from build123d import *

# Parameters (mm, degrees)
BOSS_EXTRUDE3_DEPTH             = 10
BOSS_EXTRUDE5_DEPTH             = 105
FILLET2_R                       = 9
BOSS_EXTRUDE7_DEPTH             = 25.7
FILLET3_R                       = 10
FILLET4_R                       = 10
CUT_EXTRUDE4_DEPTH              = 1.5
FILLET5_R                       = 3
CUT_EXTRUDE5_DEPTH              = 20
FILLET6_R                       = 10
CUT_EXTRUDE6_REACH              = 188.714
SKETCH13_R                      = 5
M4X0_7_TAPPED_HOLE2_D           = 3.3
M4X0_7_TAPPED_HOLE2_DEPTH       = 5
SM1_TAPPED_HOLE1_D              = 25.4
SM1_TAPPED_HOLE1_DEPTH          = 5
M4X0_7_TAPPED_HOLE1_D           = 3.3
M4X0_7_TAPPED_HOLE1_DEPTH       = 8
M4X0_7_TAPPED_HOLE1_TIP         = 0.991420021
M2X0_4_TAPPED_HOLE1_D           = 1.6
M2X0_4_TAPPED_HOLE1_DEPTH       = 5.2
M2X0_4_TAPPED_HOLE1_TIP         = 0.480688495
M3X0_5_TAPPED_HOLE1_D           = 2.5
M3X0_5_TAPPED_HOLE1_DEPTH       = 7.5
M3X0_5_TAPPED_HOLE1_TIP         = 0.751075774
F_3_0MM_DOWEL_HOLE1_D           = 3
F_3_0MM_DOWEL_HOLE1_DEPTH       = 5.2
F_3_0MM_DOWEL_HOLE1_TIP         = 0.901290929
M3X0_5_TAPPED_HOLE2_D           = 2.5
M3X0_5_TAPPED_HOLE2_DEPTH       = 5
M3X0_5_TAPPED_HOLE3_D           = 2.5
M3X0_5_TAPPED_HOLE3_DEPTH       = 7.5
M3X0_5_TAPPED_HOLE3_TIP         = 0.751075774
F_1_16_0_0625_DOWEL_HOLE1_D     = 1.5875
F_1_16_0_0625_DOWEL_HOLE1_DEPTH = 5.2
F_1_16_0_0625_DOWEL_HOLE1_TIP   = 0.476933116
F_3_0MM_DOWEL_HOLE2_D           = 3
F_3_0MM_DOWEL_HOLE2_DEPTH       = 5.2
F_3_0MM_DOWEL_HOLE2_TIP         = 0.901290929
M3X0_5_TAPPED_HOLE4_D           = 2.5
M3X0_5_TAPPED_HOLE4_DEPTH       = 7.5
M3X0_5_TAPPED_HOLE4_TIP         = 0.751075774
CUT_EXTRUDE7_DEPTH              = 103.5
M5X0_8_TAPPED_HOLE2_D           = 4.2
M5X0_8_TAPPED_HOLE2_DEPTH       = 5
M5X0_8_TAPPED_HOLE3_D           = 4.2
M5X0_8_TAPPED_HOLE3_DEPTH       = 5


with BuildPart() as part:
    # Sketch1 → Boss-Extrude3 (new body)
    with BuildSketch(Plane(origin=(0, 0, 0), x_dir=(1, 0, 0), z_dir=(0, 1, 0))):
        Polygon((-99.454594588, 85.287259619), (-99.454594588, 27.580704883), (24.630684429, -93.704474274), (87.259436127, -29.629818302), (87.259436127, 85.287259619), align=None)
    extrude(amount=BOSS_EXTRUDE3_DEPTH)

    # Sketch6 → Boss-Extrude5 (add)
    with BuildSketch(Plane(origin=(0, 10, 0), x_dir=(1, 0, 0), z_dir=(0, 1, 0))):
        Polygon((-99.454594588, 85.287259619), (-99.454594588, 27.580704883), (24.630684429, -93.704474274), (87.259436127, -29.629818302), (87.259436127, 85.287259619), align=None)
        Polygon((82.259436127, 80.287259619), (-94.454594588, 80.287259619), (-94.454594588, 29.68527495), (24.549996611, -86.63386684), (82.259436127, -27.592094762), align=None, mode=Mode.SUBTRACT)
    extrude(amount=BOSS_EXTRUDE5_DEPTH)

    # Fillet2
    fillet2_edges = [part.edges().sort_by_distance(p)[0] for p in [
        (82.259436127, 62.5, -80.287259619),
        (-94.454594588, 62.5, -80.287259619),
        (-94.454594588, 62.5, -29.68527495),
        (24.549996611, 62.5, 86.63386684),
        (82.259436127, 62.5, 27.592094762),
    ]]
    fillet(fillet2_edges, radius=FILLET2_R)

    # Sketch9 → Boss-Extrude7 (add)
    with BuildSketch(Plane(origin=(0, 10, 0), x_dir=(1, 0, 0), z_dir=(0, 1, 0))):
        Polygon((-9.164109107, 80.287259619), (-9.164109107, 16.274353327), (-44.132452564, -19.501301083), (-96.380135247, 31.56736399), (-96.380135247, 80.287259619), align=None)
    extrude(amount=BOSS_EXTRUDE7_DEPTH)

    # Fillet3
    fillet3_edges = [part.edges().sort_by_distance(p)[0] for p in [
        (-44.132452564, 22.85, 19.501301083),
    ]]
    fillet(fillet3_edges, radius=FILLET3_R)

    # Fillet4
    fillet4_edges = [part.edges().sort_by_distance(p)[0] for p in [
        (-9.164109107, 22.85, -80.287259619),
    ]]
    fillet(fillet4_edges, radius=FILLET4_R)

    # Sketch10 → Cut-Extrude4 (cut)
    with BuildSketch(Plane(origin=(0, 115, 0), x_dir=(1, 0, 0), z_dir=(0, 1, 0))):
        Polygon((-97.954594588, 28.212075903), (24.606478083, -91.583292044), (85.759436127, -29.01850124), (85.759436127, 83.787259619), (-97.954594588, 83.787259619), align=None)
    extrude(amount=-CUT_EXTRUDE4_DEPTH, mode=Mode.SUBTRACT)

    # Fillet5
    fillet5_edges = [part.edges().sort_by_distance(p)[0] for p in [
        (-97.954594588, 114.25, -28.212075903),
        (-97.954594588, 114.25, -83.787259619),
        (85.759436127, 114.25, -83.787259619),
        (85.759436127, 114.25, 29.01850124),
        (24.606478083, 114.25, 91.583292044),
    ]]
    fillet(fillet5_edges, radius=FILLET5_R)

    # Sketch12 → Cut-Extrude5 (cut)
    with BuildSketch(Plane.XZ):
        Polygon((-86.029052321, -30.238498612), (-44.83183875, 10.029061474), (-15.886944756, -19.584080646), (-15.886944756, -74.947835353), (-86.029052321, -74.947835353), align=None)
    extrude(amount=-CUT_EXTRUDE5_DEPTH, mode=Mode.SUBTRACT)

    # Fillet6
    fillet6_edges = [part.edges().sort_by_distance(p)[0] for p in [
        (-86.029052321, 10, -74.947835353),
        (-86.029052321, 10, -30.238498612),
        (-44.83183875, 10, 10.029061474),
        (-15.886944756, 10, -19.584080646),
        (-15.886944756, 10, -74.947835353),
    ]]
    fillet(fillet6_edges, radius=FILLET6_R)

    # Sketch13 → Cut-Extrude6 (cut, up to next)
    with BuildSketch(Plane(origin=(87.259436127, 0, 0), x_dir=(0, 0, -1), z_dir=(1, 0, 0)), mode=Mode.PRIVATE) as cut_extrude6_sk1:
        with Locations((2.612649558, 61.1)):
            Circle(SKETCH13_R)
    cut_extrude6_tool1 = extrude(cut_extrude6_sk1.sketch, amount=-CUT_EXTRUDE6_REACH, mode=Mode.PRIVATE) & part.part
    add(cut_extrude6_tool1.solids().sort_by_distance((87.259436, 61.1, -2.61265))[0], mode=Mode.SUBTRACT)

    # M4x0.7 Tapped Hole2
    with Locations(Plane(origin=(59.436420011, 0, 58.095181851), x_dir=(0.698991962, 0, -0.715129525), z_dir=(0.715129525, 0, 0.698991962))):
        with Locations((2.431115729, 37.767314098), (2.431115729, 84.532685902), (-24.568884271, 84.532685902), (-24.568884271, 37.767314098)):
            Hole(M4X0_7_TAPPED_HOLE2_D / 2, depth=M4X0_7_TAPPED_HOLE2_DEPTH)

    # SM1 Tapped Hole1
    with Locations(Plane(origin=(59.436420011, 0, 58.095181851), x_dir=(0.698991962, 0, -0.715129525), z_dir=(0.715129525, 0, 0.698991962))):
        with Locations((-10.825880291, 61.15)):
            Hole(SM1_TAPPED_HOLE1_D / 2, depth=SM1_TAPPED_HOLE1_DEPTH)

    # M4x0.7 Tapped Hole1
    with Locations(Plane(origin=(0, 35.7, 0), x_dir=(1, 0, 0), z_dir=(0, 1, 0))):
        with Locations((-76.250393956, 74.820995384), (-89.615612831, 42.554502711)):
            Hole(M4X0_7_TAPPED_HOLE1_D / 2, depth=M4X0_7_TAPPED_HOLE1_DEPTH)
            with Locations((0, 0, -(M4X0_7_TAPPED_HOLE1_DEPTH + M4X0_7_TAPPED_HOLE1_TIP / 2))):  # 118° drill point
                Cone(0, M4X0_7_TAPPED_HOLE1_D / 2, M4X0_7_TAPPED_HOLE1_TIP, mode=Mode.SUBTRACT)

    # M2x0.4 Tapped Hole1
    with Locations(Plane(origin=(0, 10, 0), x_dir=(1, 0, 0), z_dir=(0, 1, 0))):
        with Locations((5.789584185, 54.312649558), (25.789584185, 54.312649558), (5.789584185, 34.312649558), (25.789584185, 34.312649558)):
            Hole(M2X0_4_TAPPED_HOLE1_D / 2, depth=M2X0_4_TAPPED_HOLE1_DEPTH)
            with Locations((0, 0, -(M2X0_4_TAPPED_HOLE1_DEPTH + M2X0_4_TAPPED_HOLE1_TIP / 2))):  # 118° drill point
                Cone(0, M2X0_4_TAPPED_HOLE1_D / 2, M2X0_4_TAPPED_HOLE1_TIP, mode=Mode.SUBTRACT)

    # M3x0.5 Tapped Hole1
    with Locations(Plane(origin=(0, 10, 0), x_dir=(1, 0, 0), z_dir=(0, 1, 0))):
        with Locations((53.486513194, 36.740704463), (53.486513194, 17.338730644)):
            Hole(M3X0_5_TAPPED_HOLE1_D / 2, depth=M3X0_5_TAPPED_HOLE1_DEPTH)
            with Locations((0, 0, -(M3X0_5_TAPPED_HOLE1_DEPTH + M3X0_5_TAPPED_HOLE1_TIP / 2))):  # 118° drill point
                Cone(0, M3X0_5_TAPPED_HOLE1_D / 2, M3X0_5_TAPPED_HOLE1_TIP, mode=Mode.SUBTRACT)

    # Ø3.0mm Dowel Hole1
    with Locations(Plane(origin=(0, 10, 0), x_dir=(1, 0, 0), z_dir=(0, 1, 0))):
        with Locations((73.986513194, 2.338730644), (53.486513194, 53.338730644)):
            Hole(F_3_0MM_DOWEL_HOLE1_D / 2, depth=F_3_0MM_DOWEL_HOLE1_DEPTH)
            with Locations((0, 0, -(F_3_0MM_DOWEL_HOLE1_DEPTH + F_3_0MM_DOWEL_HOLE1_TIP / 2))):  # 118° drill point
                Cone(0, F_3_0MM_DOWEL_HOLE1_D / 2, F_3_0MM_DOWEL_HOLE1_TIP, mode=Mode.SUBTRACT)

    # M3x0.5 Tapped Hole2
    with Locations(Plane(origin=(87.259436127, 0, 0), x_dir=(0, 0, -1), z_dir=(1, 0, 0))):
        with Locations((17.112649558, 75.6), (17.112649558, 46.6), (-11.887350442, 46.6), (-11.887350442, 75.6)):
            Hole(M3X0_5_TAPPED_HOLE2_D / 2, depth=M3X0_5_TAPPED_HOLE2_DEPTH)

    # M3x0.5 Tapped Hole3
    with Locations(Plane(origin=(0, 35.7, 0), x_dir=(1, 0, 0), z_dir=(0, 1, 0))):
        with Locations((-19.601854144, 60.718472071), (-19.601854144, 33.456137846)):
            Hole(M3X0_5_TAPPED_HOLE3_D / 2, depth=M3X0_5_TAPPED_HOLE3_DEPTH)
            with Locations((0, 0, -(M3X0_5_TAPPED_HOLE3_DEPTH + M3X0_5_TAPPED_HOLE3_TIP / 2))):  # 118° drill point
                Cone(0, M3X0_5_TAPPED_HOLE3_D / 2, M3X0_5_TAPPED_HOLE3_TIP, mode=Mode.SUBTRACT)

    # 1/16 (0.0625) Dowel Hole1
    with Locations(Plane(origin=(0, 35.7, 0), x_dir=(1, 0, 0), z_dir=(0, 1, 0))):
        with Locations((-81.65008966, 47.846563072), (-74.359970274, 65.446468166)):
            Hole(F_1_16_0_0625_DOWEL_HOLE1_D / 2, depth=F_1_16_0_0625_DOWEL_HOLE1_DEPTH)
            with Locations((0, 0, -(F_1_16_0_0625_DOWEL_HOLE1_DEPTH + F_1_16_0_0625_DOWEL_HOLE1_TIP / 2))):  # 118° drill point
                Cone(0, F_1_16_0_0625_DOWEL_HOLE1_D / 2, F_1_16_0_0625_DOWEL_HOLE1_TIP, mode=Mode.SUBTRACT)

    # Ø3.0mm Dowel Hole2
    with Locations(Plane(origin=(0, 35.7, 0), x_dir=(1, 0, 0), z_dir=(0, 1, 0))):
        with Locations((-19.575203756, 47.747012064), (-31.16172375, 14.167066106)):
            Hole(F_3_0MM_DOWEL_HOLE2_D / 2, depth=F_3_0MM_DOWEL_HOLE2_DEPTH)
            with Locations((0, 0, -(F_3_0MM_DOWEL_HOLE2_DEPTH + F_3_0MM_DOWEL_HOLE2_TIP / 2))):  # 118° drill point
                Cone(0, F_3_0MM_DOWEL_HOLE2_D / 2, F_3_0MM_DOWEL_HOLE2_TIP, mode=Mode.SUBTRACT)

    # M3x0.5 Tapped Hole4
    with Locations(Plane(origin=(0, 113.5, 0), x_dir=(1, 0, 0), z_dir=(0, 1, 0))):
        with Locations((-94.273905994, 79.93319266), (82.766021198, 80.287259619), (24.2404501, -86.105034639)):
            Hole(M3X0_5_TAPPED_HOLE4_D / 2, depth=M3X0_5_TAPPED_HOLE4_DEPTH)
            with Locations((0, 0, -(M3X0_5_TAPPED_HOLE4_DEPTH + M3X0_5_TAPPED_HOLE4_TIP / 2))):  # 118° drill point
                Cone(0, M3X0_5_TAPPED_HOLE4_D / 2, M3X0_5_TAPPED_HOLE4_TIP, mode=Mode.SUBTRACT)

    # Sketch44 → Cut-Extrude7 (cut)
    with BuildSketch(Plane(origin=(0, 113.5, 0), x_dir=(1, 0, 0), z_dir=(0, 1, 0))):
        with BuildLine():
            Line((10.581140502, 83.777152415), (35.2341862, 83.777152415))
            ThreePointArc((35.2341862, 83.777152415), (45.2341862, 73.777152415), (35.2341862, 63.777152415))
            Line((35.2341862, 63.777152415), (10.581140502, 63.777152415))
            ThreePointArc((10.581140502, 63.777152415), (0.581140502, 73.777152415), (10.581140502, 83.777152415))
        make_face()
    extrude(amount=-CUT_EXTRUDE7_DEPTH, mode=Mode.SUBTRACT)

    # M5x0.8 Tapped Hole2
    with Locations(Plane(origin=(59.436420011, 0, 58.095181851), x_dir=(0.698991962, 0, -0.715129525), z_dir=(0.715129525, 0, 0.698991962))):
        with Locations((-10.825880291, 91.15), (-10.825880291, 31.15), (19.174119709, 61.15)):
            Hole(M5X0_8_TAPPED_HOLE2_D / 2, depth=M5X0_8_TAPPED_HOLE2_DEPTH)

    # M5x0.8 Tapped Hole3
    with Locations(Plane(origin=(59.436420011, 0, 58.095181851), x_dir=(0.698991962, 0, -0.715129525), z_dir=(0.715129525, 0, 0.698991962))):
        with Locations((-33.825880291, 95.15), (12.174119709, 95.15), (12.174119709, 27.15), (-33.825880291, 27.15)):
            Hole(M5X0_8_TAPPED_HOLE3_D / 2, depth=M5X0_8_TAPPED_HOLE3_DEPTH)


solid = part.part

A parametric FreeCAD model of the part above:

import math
import FreeCAD as App
import Part
import Sketcher
Q = App.Units.Quantity


def edges_at(feature, points):
    """Names of the edges that pass closest to the given points."""
    edges = feature.Shape.Edges
    near = lambda p: min(range(len(edges)), key=lambda i: edges[i].distToShape(Part.Vertex(*p))[0])
    return sorted({f"Edge{near(p) + 1}" for p in points})


def add_polygon(sketch, points):
    """Adds a closed chain of lines whose ends are joined by coincident constraints."""
    first, n = sketch.GeometryCount, len(points)
    for a, b in zip(points, points[1:] + points[:1]):
        sketch.addGeometry(Part.LineSegment(App.Vector(*a, 0), App.Vector(*b, 0)), False)
    for i in range(n):
        sketch.addConstraint(Sketcher.Constraint("Coincident", first + i, 2, first + (i + 1) % n, 1))

doc = App.newDocument("Part")
body = doc.addObject("PartDesign::Body", "Body")

# Sketch on XZ plane
sketch1 = body.newObject("Sketcher::SketchObject", "Sketch")
sketch1.AttachmentSupport = (doc.getObject("XZ_Plane"), [""])
sketch1.MapMode = "FlatFace"
add_polygon(sketch1, [(-99, -85), (-99, -28), (25, 94), (87, 30), (87, -85)])  # lines 0-4
sketch1.addConstraint([
    Sketcher.Constraint("Vertical", 0),
    Sketcher.Constraint("Vertical", 3),
    Sketcher.Constraint("Horizontal", 4),
    Sketcher.Constraint("Perpendicular", 1, 2),
    Sketcher.Constraint("DistanceX", 4, 2, 4, 1, Q("186.714031 mm")),
    Sketcher.Constraint("Distance", 1, Q("173.514412 mm")),
    Sketcher.Constraint("DistanceY", 0, 1, 0, 2, Q("57.706555 mm")),
    Sketcher.Constraint("DistanceY", 3, 2, 3, 1, Q("114.917078 mm")),
    Sketcher.Constraint("DistanceY", -1, 1, 2, 2, Q("29.629818 mm")),
    Sketcher.Constraint("DistanceX", 0, 2, -1, 1, Q("99.454595 mm")),
])
pad1 = body.newObject("PartDesign::Pad", "Pad")
pad1.Profile = sketch1
pad1.Length = 10
pad1.Reversed = True

# Sketch on XZ plane
sketch2 = body.newObject("Sketcher::SketchObject", "Sketch001")
sketch2.AttachmentSupport = (doc.getObject("XZ_Plane"), [""])
sketch2.MapMode = "FlatFace"
sketch2.AttachmentOffset = App.Placement(App.Vector(0, 0, -10), App.Rotation())
add_polygon(sketch2, [(-99, -85), (-99, -28), (25, 94), (87, 30), (87, -85)])  # lines 0-4
add_polygon(sketch2, [(-94, -80), (82, -80), (82, 28), (25, 87), (-94, -30)])  # lines 5-9
sketch2.addConstraint([
    Sketcher.Constraint("Vertical", 0),
    Sketcher.Constraint("Vertical", 3),
    Sketcher.Constraint("Horizontal", 4),
    Sketcher.Constraint("Horizontal", 5),
    Sketcher.Constraint("Vertical", 6),
    Sketcher.Constraint("Vertical", 9),
    Sketcher.Constraint("Perpendicular", 1, 2),
    Sketcher.Constraint("Parallel", 2, 7),
    Sketcher.Constraint("Perpendicular", 7, 8),
    Sketcher.Constraint("DistanceX", 5, 2, 3, 2, Q("5 mm")),
    Sketcher.Constraint("DistanceY", 3, 2, 5, 2, Q("5 mm")),
    Sketcher.Constraint("DistanceX", 0, 2, 8, 2, Q("5 mm")),
    Sketcher.Constraint("DistanceX", 4, 2, 4, 1, Q("186.714031 mm")),
    Sketcher.Constraint("DistanceY", 0, 2, 6, 2, Q("55.1728 mm")),
    Sketcher.Constraint("Distance", 1, Q("173.514412 mm")),
    Sketcher.Constraint("Distance", 7, Q("82.560949 mm")),
    Sketcher.Constraint("Distance", 8, Q("166.409842 mm")),
    Sketcher.Constraint("DistanceY", 0, 1, 0, 2, Q("57.706555 mm")),
    Sketcher.Constraint("DistanceY", -1, 1, 2, 2, Q("29.629818 mm")),
    Sketcher.Constraint("DistanceX", 0, 2, -1, 1, Q("99.454595 mm")),
])
pad2 = body.newObject("PartDesign::Pad", "Pad001")
pad2.Profile = sketch2
pad2.Length = 105
pad2.Reversed = True
doc.recompute()

fillet = body.newObject("PartDesign::Fillet", "Fillet")
fillet.Base = (pad2, edges_at(pad2, [
    (82.259, 62.5, -80.287),
    (-94.455, 62.5, -80.287),
    (-94.455, 62.5, -29.685),
    (24.55, 62.5, 86.634),
    (82.259, 62.5, 27.592),
]))
fillet.Radius = 9

# Sketch on XZ plane
sketch3 = body.newObject("Sketcher::SketchObject", "Sketch002")
sketch3.AttachmentSupport = (doc.getObject("XZ_Plane"), [""])
sketch3.MapMode = "FlatFace"
sketch3.AttachmentOffset = App.Placement(App.Vector(0, 0, -10), App.Rotation())
add_polygon(sketch3, [(-9, -16), (-9, -80), (-96, -80), (-96, -32), (-44, 20)])  # lines 0-4
sketch3.addConstraint([
    Sketcher.Constraint("Vertical", 0),
    Sketcher.Constraint("Horizontal", 1),
    Sketcher.Constraint("Vertical", 2),
    Sketcher.Constraint("Perpendicular", 3, 4),
    Sketcher.Constraint("DistanceY", -1, 1, 3, 2, Q("19.501301 mm")),
    Sketcher.Constraint("DistanceX", 1, 2, 1, 1, Q("87.216026 mm")),
    Sketcher.Constraint("DistanceY", 0, 2, 0, 1, Q("64.012906 mm")),
    Sketcher.Constraint("DistanceY", 2, 1, 2, 2, Q("48.719896 mm")),
    Sketcher.Constraint("DistanceX", 0, 2, -1, 1, Q("9.164109 mm")),
    Sketcher.Constraint("DistanceY", 0, 2, -1, 1, Q("80.28726 mm")),
])
pad3 = body.newObject("PartDesign::Pad", "Pad002")
pad3.Profile = sketch3
pad3.Length = 25.7
pad3.Reversed = True
doc.recompute()

fillet2 = body.newObject("PartDesign::Fillet", "Fillet001")
fillet2.Base = (pad3, edges_at(pad3, [(-44.132, 22.85, 19.501)]))
fillet2.Radius = 10
doc.recompute()

fillet3 = body.newObject("PartDesign::Fillet", "Fillet002")
fillet3.Base = (fillet2, edges_at(fillet2, [(-9.164, 22.85, -80.287)]))
fillet3.Radius = 10

# Sketch on XZ plane
sketch4 = body.newObject("Sketcher::SketchObject", "Sketch003")
sketch4.AttachmentSupport = (doc.getObject("XZ_Plane"), [""])
sketch4.MapMode = "FlatFace"
sketch4.AttachmentOffset = App.Placement(App.Vector(0, 0, -115), App.Rotation())
add_polygon(sketch4, [(-98, -28), (25, 92), (86, 29), (86, -84), (-98, -84)])  # lines 0-4
sketch4.addConstraint([
    Sketcher.Constraint("Vertical", 2),
    Sketcher.Constraint("Horizontal", 3),
    Sketcher.Constraint("Vertical", 4),
    Sketcher.Constraint("Perpendicular", 0, 1),
    Sketcher.Constraint("DistanceX", 3, 2, 3, 1, Q("183.714031 mm")),
    Sketcher.Constraint("DistanceY", 2, 2, 2, 1, Q("112.805761 mm")),
    Sketcher.Constraint("DistanceY", -1, 1, 1, 2, Q("29.018501 mm")),
    Sketcher.Constraint("Distance", 0, Q("171.383041 mm")),
    Sketcher.Constraint("DistanceY", 4, 1, 4, 2, Q("55.575184 mm")),
    Sketcher.Constraint("DistanceX", -1, 1, 0, 2, Q("24.606478 mm")),
])
pocket1 = body.newObject("PartDesign::Pocket", "Pocket")
pocket1.Profile = sketch4
pocket1.Length = 1.5
pocket1.Reversed = True
doc.recompute()

fillet4 = body.newObject("PartDesign::Fillet", "Fillet003")
fillet4.Base = (pocket1, edges_at(pocket1, [
    (-97.955, 114.25, -28.212),
    (-97.955, 114.25, -83.787),
    (85.759, 114.25, -83.787),
    (85.759, 114.25, 29.019),
    (24.606, 114.25, 91.583),
]))
fillet4.Radius = 3

# Sketch on XZ plane
sketch5 = body.newObject("Sketcher::SketchObject", "Sketch004")
sketch5.AttachmentSupport = (doc.getObject("XZ_Plane"), [""])
sketch5.MapMode = "FlatFace"
add_polygon(sketch5, [(-45, 10), (-86, -30), (-86, -75), (-16, -75), (-16, -20)])  # lines 0-4
sketch5.addConstraint([
    Sketcher.Constraint("Vertical", 1),
    Sketcher.Constraint("Horizontal", 2),
    Sketcher.Constraint("Vertical", 3),
    Sketcher.Constraint("Perpendicular", 0, 4),
    Sketcher.Constraint("DistanceY", 0, 2, -1, 1, Q("30.238499 mm")),
    Sketcher.Constraint("Distance", 4, Q("41.40948 mm")),
    Sketcher.Constraint("DistanceX", 2, 1, 2, 2, Q("70.142108 mm")),
    Sketcher.Constraint("DistanceY", 1, 2, 1, 1, Q("44.709337 mm")),
    Sketcher.Constraint("DistanceY", 3, 1, 3, 2, Q("55.363755 mm")),
    Sketcher.Constraint("DistanceX", 4, 2, -1, 1, Q("44.831839 mm")),
])
pocket2 = body.newObject("PartDesign::Pocket", "Pocket001")
pocket2.Profile = sketch5
pocket2.Length = 20
doc.recompute()

fillet5 = body.newObject("PartDesign::Fillet", "Fillet004")
fillet5.Base = (pocket2, edges_at(pocket2, [
    (-86.029, 10, -74.948),
    (-86.029, 10, -30.238),
    (-44.832, 10, 10.029),
    (-15.887, 10, -19.584),
    (-15.887, 10, -74.948),
]))
fillet5.Radius = 10

# Sketch on YZ plane
sketch6 = body.newObject("Sketcher::SketchObject", "Sketch005")
sketch6.AttachmentSupport = (doc.getObject("YZ_Plane"), [""])
sketch6.MapMode = "FlatFace"
sketch6.AttachmentOffset = App.Placement(App.Vector(0, 0, 87.259436), App.Rotation())
sketch6.addGeometry(Part.Circle(App.Vector(61, -3, 0), App.Vector(0, 0, 1), 5), False)
sketch6.addConstraint([
    Sketcher.Constraint("Diameter", 0, Q("10 mm")),
    Sketcher.Constraint("DistanceX", -1, 1, 0, 3, Q("61.1 mm")),
    Sketcher.Constraint("DistanceY", 0, 3, -1, 1, Q("2.61265 mm")),
])
pocket3 = body.newObject("PartDesign::Pocket", "Pocket002")
pocket3.Profile = sketch6
pocket3.Type = "UpToFirst"

# Sketch on an angled plane
sketch7 = body.newObject("Sketcher::SketchObject", "Sketch006")
sketch7.Placement = App.Placement(App.Vector(59.43642, 0, 58.095182), App.Rotation(App.Vector(0.698991962, 0, -0.715129525), App.Vector(0, 1, 0), App.Vector(0.715129525, 0, 0.698991962), "ZXY"))
sketch7.addGeometry([
    Part.Circle(App.Vector(2.4, 37.8, 0), App.Vector(0, 0, 1), 1.6),
    Part.Circle(App.Vector(2.4, 84.5, 0), App.Vector(0, 0, 1), 1.6),
    Part.Circle(App.Vector(-24.6, 84.5, 0), App.Vector(0, 0, 1), 1.6),
    Part.Circle(App.Vector(-24.6, 37.8, 0), App.Vector(0, 0, 1), 1.6),
], False)
sketch7.addConstraint([
    Sketcher.Constraint("Equal", 0, 1),
    Sketcher.Constraint("Equal", 1, 2),
    Sketcher.Constraint("Equal", 2, 3),
    Sketcher.Constraint("Horizontal", 1, 3, 2, 3),
    Sketcher.Constraint("Horizontal", 0, 3, 3, 3),
    Sketcher.Constraint("Vertical", 0, 3, 1, 3),
    Sketcher.Constraint("Vertical", 2, 3, 3, 3),
    Sketcher.Constraint("Diameter", 0, Q("3.3 mm")),
    Sketcher.Constraint("DistanceX", 2, 3, 1, 3, Q("27 mm")),
    Sketcher.Constraint("DistanceY", 0, 3, 1, 3, Q("46.765372 mm")),
    Sketcher.Constraint("DistanceX", -1, 1, 0, 3, Q("2.431116 mm")),
    Sketcher.Constraint("DistanceY", -1, 1, 0, 3, Q("37.767314 mm")),
])
doc.recompute()
hole = body.newObject("PartDesign::Hole", "Hole")
hole.Profile = sketch7
hole.ThreadType = "None"
hole.Diameter = 3.3
hole.DepthType = "Dimension"
hole.Depth = 5
hole.DrillPoint = "Flat"

# Sketch on an angled plane
sketch8 = body.newObject("Sketcher::SketchObject", "Sketch007")
sketch8.Placement = App.Placement(App.Vector(59.43642, 0, 58.095182), App.Rotation(App.Vector(0.698991962, 0, -0.715129525), App.Vector(0, 1, 0), App.Vector(0.715129525, 0, 0.698991962), "ZXY"))
sketch8.addGeometry(Part.Circle(App.Vector(-11, 61, 0), App.Vector(0, 0, 1), 13), False)
sketch8.addConstraint([
    Sketcher.Constraint("Diameter", 0, Q("25.4 mm")),
    Sketcher.Constraint("DistanceY", -1, 1, 0, 3, Q("61.15 mm")),
    Sketcher.Constraint("DistanceX", 0, 3, -1, 1, Q("10.82588 mm")),
])
doc.recompute()
hole2 = body.newObject("PartDesign::Hole", "Hole001")
hole2.Profile = sketch8
hole2.ThreadType = "None"
hole2.Diameter = 25.4
hole2.DepthType = "Dimension"
hole2.Depth = 5
hole2.DrillPoint = "Flat"

# Sketch on XZ plane
sketch9 = body.newObject("Sketcher::SketchObject", "Sketch008")
sketch9.AttachmentSupport = (doc.getObject("XZ_Plane"), [""])
sketch9.MapMode = "FlatFace"
sketch9.AttachmentOffset = App.Placement(App.Vector(0, 0, -35.7), App.Rotation())
sketch9.addGeometry([
    Part.Circle(App.Vector(-76.3, -74.8, 0), App.Vector(0, 0, 1), 1.6),
    Part.Circle(App.Vector(-89.6, -42.6, 0), App.Vector(0, 0, 1), 1.6),
], False)
sketch9.addConstraint([
    Sketcher.Constraint("Equal", 0, 1),
    Sketcher.Constraint("Diameter", 0, Q("3.3 mm")),
    Sketcher.Constraint("DistanceX", 1, 3, 0, 3, Q("13.365219 mm")),
    Sketcher.Constraint("DistanceX", 0, 3, -1, 1, Q("76.250394 mm")),
    Sketcher.Constraint("DistanceY", 0, 3, -1, 1, Q("74.820995 mm")),
    Sketcher.Constraint("DistanceY", 1, 3, -1, 1, Q("42.554503 mm")),
])
doc.recompute()
hole3 = body.newObject("PartDesign::Hole", "Hole002")
hole3.Profile = sketch9
hole3.ThreadType = "None"
hole3.Diameter = 3.3
hole3.DepthType = "Dimension"
hole3.Depth = 8
hole3.DrillPoint = "Angled"
hole3.DrillPointAngle = 118
hole3.Reversed = True

# Sketch on XZ plane
sketch10 = body.newObject("Sketcher::SketchObject", "Sketch009")
sketch10.AttachmentSupport = (doc.getObject("XZ_Plane"), [""])
sketch10.MapMode = "FlatFace"
sketch10.AttachmentOffset = App.Placement(App.Vector(0, 0, -10), App.Rotation())
sketch10.addGeometry([
    Part.Circle(App.Vector(5.8, -54.3, 0), App.Vector(0, 0, 1), 0.8),
    Part.Circle(App.Vector(25.8, -54.3, 0), App.Vector(0, 0, 1), 0.8),
    Part.Circle(App.Vector(5.8, -34.3, 0), App.Vector(0, 0, 1), 0.8),
    Part.Circle(App.Vector(25.8, -34.3, 0), App.Vector(0, 0, 1), 0.8),
], False)
sketch10.addConstraint([
    Sketcher.Constraint("Equal", 0, 1),
    Sketcher.Constraint("Equal", 1, 2),
    Sketcher.Constraint("Equal", 2, 3),
    Sketcher.Constraint("Horizontal", 0, 3, 1, 3),
    Sketcher.Constraint("Horizontal", 2, 3, 3, 3),
    Sketcher.Constraint("Vertical", 0, 3, 2, 3),
    Sketcher.Constraint("Vertical", 1, 3, 3, 3),
    Sketcher.Constraint("Diameter", 0, Q("1.6 mm")),
    Sketcher.Constraint("DistanceX", 0, 3, 1, 3, Q("20 mm")),
    Sketcher.Constraint("DistanceY", 0, 3, 2, 3, Q("20 mm")),
    Sketcher.Constraint("DistanceY", 0, 3, -1, 1, Q("54.31265 mm")),
    Sketcher.Constraint("DistanceX", -1, 1, 0, 3, Q("5.789584 mm")),
])
doc.recompute()
hole4 = body.newObject("PartDesign::Hole", "Hole003")
hole4.Profile = sketch10
hole4.ThreadType = "None"
hole4.Diameter = 1.6
hole4.DepthType = "Dimension"
hole4.Depth = 5.2
hole4.DrillPoint = "Angled"
hole4.DrillPointAngle = 118
hole4.Reversed = True

# Sketch on XZ plane
sketch11 = body.newObject("Sketcher::SketchObject", "Sketch010")
sketch11.AttachmentSupport = (doc.getObject("XZ_Plane"), [""])
sketch11.MapMode = "FlatFace"
sketch11.AttachmentOffset = App.Placement(App.Vector(0, 0, -10), App.Rotation())
sketch11.addGeometry([
    Part.Circle(App.Vector(53.5, -36.7, 0), App.Vector(0, 0, 1), 1.2),
    Part.Circle(App.Vector(53.5, -17.3, 0), App.Vector(0, 0, 1), 1.2),
], False)
sketch11.addConstraint([
    Sketcher.Constraint("Equal", 0, 1),
    Sketcher.Constraint("Vertical", 0, 3, 1, 3),
    Sketcher.Constraint("Diameter", 0, Q("2.5 mm")),
    Sketcher.Constraint("DistanceY", 1, 3, -1, 1, Q("17.338731 mm")),
    Sketcher.Constraint("DistanceX", -1, 1, 0, 3, Q("53.486513 mm")),
    Sketcher.Constraint("DistanceY", 0, 3, -1, 1, Q("36.740704 mm")),
])
doc.recompute()
hole5 = body.newObject("PartDesign::Hole", "Hole004")
hole5.Profile = sketch11
hole5.ThreadType = "None"
hole5.Diameter = 2.5
hole5.DepthType = "Dimension"
hole5.Depth = 7.5
hole5.DrillPoint = "Angled"
hole5.DrillPointAngle = 118
hole5.Reversed = True

# Sketch on XZ plane
sketch12 = body.newObject("Sketcher::SketchObject", "Sketch011")
sketch12.AttachmentSupport = (doc.getObject("XZ_Plane"), [""])
sketch12.MapMode = "FlatFace"
sketch12.AttachmentOffset = App.Placement(App.Vector(0, 0, -10), App.Rotation())
sketch12.addGeometry([
    Part.Circle(App.Vector(74, -2.3, 0), App.Vector(0, 0, 1), 1.5),
    Part.Circle(App.Vector(53.5, -53.3, 0), App.Vector(0, 0, 1), 1.5),
], False)
sketch12.addConstraint([
    Sketcher.Constraint("Equal", 0, 1),
    Sketcher.Constraint("Diameter", 0, Q("3 mm")),
    Sketcher.Constraint("DistanceY", 1, 3, 0, 3, Q("51 mm")),
    Sketcher.Constraint("DistanceX", 1, 3, 0, 3, Q("20.5 mm")),
    Sketcher.Constraint("DistanceY", 0, 3, -1, 1, Q("2.338731 mm")),
    Sketcher.Constraint("DistanceX", -1, 1, 0, 3, Q("73.986513 mm")),
])
doc.recompute()
hole6 = body.newObject("PartDesign::Hole", "Hole005")
hole6.Profile = sketch12
hole6.ThreadType = "None"
hole6.Diameter = 3
hole6.DepthType = "Dimension"
hole6.Depth = 5.2
hole6.DrillPoint = "Angled"
hole6.DrillPointAngle = 118
hole6.Reversed = True

# Sketch on YZ plane
sketch13 = body.newObject("Sketcher::SketchObject", "Sketch012")
sketch13.AttachmentSupport = (doc.getObject("YZ_Plane"), [""])
sketch13.MapMode = "FlatFace"
sketch13.AttachmentOffset = App.Placement(App.Vector(0, 0, 87.259436), App.Rotation())
sketch13.addGeometry([
    Part.Circle(App.Vector(75.6, -17.1, 0), App.Vector(0, 0, 1), 1.2),
    Part.Circle(App.Vector(46.6, -17.1, 0), App.Vector(0, 0, 1), 1.2),
    Part.Circle(App.Vector(46.6, 11.9, 0), App.Vector(0, 0, 1), 1.2),
    Part.Circle(App.Vector(75.6, 11.9, 0), App.Vector(0, 0, 1), 1.2),
], False)
sketch13.addConstraint([
    Sketcher.Constraint("Equal", 0, 1),
    Sketcher.Constraint("Equal", 1, 2),
    Sketcher.Constraint("Equal", 2, 3),
    Sketcher.Constraint("Horizontal", 0, 3, 1, 3),
    Sketcher.Constraint("Horizontal", 2, 3, 3, 3),
    Sketcher.Constraint("Vertical", 1, 3, 2, 3),
    Sketcher.Constraint("Vertical", 0, 3, 3, 3),
    Sketcher.Constraint("Diameter", 0, Q("2.5 mm")),
    Sketcher.Constraint("DistanceX", 1, 3, 0, 3, Q("29 mm")),
    Sketcher.Constraint("DistanceY", 1, 3, 2, 3, Q("29 mm")),
    Sketcher.Constraint("DistanceX", -1, 1, 0, 3, Q("75.6 mm")),
    Sketcher.Constraint("DistanceY", 0, 3, -1, 1, Q("17.11265 mm")),
])
doc.recompute()
hole7 = body.newObject("PartDesign::Hole", "Hole006")
hole7.Profile = sketch13
hole7.ThreadType = "None"
hole7.Diameter = 2.5
hole7.DepthType = "Dimension"
hole7.Depth = 5
hole7.DrillPoint = "Flat"

# Sketch on XZ plane
sketch14 = body.newObject("Sketcher::SketchObject", "Sketch013")
sketch14.AttachmentSupport = (doc.getObject("XZ_Plane"), [""])
sketch14.MapMode = "FlatFace"
sketch14.AttachmentOffset = App.Placement(App.Vector(0, 0, -35.7), App.Rotation())
sketch14.addGeometry([
    Part.Circle(App.Vector(-19.6, -60.7, 0), App.Vector(0, 0, 1), 1.2),
    Part.Circle(App.Vector(-19.6, -33.5, 0), App.Vector(0, 0, 1), 1.2),
], False)
sketch14.addConstraint([
    Sketcher.Constraint("Equal", 0, 1),
    Sketcher.Constraint("Vertical", 0, 3, 1, 3),
    Sketcher.Constraint("Diameter", 0, Q("2.5 mm")),
    Sketcher.Constraint("DistanceX", 0, 3, -1, 1, Q("19.601854 mm")),
    Sketcher.Constraint("DistanceY", 0, 3, -1, 1, Q("60.718472 mm")),
    Sketcher.Constraint("DistanceY", 1, 3, -1, 1, Q("33.456138 mm")),
])
doc.recompute()
hole8 = body.newObject("PartDesign::Hole", "Hole007")
hole8.Profile = sketch14
hole8.ThreadType = "None"
hole8.Diameter = 2.5
hole8.DepthType = "Dimension"
hole8.Depth = 7.5
hole8.DrillPoint = "Angled"
hole8.DrillPointAngle = 118
hole8.Reversed = True

# Sketch on XZ plane
sketch15 = body.newObject("Sketcher::SketchObject", "Sketch014")
sketch15.AttachmentSupport = (doc.getObject("XZ_Plane"), [""])
sketch15.MapMode = "FlatFace"
sketch15.AttachmentOffset = App.Placement(App.Vector(0, 0, -35.7), App.Rotation())
sketch15.addGeometry([
    Part.Circle(App.Vector(-81.7, -47.8, 0), App.Vector(0, 0, 1), 0.8),
    Part.Circle(App.Vector(-74.4, -65.4, 0), App.Vector(0, 0, 1), 0.8),
], False)
sketch15.addConstraint([
    Sketcher.Constraint("Equal", 0, 1),
    Sketcher.Constraint("Diameter", 0, Q("1.5875 mm")),
    Sketcher.Constraint("DistanceX", 0, 3, -1, 1, Q("81.65009 mm")),
    Sketcher.Constraint("DistanceX", 1, 3, -1, 1, Q("74.35997 mm")),
    Sketcher.Constraint("DistanceY", 1, 3, -1, 1, Q("65.446468 mm")),
    Sketcher.Constraint("DistanceY", 0, 3, -1, 1, Q("47.846563 mm")),
])
doc.recompute()
hole9 = body.newObject("PartDesign::Hole", "Hole008")
hole9.Profile = sketch15
hole9.ThreadType = "None"
hole9.Diameter = 1.5875
hole9.DepthType = "Dimension"
hole9.Depth = 5.2
hole9.DrillPoint = "Angled"
hole9.DrillPointAngle = 118
hole9.Reversed = True

# Sketch on XZ plane
sketch16 = body.newObject("Sketcher::SketchObject", "Sketch015")
sketch16.AttachmentSupport = (doc.getObject("XZ_Plane"), [""])
sketch16.MapMode = "FlatFace"
sketch16.AttachmentOffset = App.Placement(App.Vector(0, 0, -35.7), App.Rotation())
sketch16.addGeometry([
    Part.Circle(App.Vector(-19.6, -47.7, 0), App.Vector(0, 0, 1), 1.5),
    Part.Circle(App.Vector(-31.2, -14.2, 0), App.Vector(0, 0, 1), 1.5),
], False)
sketch16.addConstraint([
    Sketcher.Constraint("Equal", 0, 1),
    Sketcher.Constraint("Diameter", 0, Q("3 mm")),
    Sketcher.Constraint("DistanceX", 1, 3, 0, 3, Q("11.58652 mm")),
    Sketcher.Constraint("DistanceX", 0, 3, -1, 1, Q("19.575204 mm")),
    Sketcher.Constraint("DistanceY", 0, 3, -1, 1, Q("47.747012 mm")),
    Sketcher.Constraint("DistanceY", 1, 3, -1, 1, Q("14.167066 mm")),
])
doc.recompute()
hole10 = body.newObject("PartDesign::Hole", "Hole009")
hole10.Profile = sketch16
hole10.ThreadType = "None"
hole10.Diameter = 3
hole10.DepthType = "Dimension"
hole10.Depth = 5.2
hole10.DrillPoint = "Angled"
hole10.DrillPointAngle = 118
hole10.Reversed = True

# Sketch on XZ plane
sketch17 = body.newObject("Sketcher::SketchObject", "Sketch016")
sketch17.AttachmentSupport = (doc.getObject("XZ_Plane"), [""])
sketch17.MapMode = "FlatFace"
sketch17.AttachmentOffset = App.Placement(App.Vector(0, 0, -113.5), App.Rotation())
sketch17.addGeometry([
    Part.Circle(App.Vector(-94.3, -79.9, 0), App.Vector(0, 0, 1), 1.2),
    Part.Circle(App.Vector(82.8, -80.3, 0), App.Vector(0, 0, 1), 1.2),
    Part.Circle(App.Vector(24.2, 86.1, 0), App.Vector(0, 0, 1), 1.2),
], False)
sketch17.addConstraint([
    Sketcher.Constraint("Equal", 0, 1),
    Sketcher.Constraint("Equal", 1, 2),
    Sketcher.Constraint("Diameter", 0, Q("2.5 mm")),
    Sketcher.Constraint("DistanceX", -1, 1, 1, 3, Q("82.766021 mm")),
    Sketcher.Constraint("DistanceY", 1, 3, -1, 1, Q("80.28726 mm")),
    Sketcher.Constraint("DistanceX", -1, 1, 2, 3, Q("24.24045 mm")),
    Sketcher.Constraint("DistanceX", 0, 3, -1, 1, Q("94.273906 mm")),
    Sketcher.Constraint("DistanceY", 0, 3, -1, 1, Q("79.933193 mm")),
    Sketcher.Constraint("DistanceY", -1, 1, 2, 3, Q("86.105035 mm")),
])
doc.recompute()
hole11 = body.newObject("PartDesign::Hole", "Hole010")
hole11.Profile = sketch17
hole11.ThreadType = "None"
hole11.Diameter = 2.5
hole11.DepthType = "Dimension"
hole11.Depth = 7.5
hole11.DrillPoint = "Angled"
hole11.DrillPointAngle = 118
hole11.Reversed = True

# Sketch on XZ plane
sketch18 = body.newObject("Sketcher::SketchObject", "Sketch017")
sketch18.AttachmentSupport = (doc.getObject("XZ_Plane"), [""])
sketch18.MapMode = "FlatFace"
sketch18.AttachmentOffset = App.Placement(App.Vector(0, 0, -113.5), App.Rotation())
sketch18.addGeometry([
    Part.LineSegment(App.Vector(35, -84, 0), App.Vector(11, -84, 0)),
    Part.ArcOfCircle(Part.Circle(App.Vector(11, -74, 0), App.Vector(0, 0, 1), 10), math.radians(90), math.radians(270)),
    Part.LineSegment(App.Vector(11, -64, 0), App.Vector(35, -64, 0)),
    Part.ArcOfCircle(Part.Circle(App.Vector(35, -74, 0), App.Vector(0, 0, 1), 10), math.radians(-90), math.radians(90)),
], False)
sketch18.addConstraint([
    Sketcher.Constraint("Tangent", 0, 2, 1, 2),
    Sketcher.Constraint("Tangent", 1, 1, 2, 1),
    Sketcher.Constraint("Tangent", 2, 2, 3, 2),
    Sketcher.Constraint("Tangent", 3, 1, 0, 1),
    Sketcher.Constraint("Horizontal", 0),
    Sketcher.Constraint("Horizontal", 2),
    Sketcher.Constraint("Radius", 1, Q("10 mm")),
    Sketcher.Constraint("DistanceX", 0, 2, 0, 1, Q("24.653046 mm")),
    Sketcher.Constraint("DistanceX", -1, 1, 1, 3, Q("10.581141 mm")),
    Sketcher.Constraint("DistanceY", 1, 3, -1, 1, Q("73.777152 mm")),
])
pocket4 = body.newObject("PartDesign::Pocket", "Pocket003")
pocket4.Profile = sketch18
pocket4.Length = 103.5
pocket4.Reversed = True

# Sketch on an angled plane
sketch19 = body.newObject("Sketcher::SketchObject", "Sketch018")
sketch19.Placement = App.Placement(App.Vector(59.43642, 0, 58.095182), App.Rotation(App.Vector(0.698991962, 0, -0.715129525), App.Vector(0, 1, 0), App.Vector(0.715129525, 0, 0.698991962), "ZXY"))
sketch19.addGeometry([
    Part.Circle(App.Vector(-10.8, 91.2, 0), App.Vector(0, 0, 1), 2.1),
    Part.Circle(App.Vector(-10.8, 31.2, 0), App.Vector(0, 0, 1), 2.1),
    Part.Circle(App.Vector(19.2, 61.2, 0), App.Vector(0, 0, 1), 2.1),
], False)
sketch19.addConstraint([
    Sketcher.Constraint("Equal", 0, 1),
    Sketcher.Constraint("Equal", 1, 2),
    Sketcher.Constraint("Vertical", 0, 3, 1, 3),
    Sketcher.Constraint("Diameter", 0, Q("4.2 mm")),
    Sketcher.Constraint("DistanceY", 1, 3, 0, 3, Q("60 mm")),
    Sketcher.Constraint("DistanceX", 0, 3, 2, 3, Q("30 mm")),
    Sketcher.Constraint("DistanceY", 2, 3, 0, 3, Q("30 mm")),
    Sketcher.Constraint("DistanceY", -1, 1, 0, 3, Q("91.15 mm")),
    Sketcher.Constraint("DistanceX", 0, 3, -1, 1, Q("10.82588 mm")),
])
doc.recompute()
hole12 = body.newObject("PartDesign::Hole", "Hole011")
hole12.Profile = sketch19
hole12.ThreadType = "None"
hole12.Diameter = 4.2
hole12.DepthType = "Dimension"
hole12.Depth = 5
hole12.DrillPoint = "Flat"

# Sketch on an angled plane
sketch20 = body.newObject("Sketcher::SketchObject", "Sketch019")
sketch20.Placement = App.Placement(App.Vector(59.43642, 0, 58.095182), App.Rotation(App.Vector(0.698991962, 0, -0.715129525), App.Vector(0, 1, 0), App.Vector(0.715129525, 0, 0.698991962), "ZXY"))
sketch20.addGeometry([
    Part.Circle(App.Vector(-33.8, 95.2, 0), App.Vector(0, 0, 1), 2.1),
    Part.Circle(App.Vector(12.2, 95.2, 0), App.Vector(0, 0, 1), 2.1),
    Part.Circle(App.Vector(12.2, 27.2, 0), App.Vector(0, 0, 1), 2.1),
    Part.Circle(App.Vector(-33.8, 27.2, 0), App.Vector(0, 0, 1), 2.1),
], False)
sketch20.addConstraint([
    Sketcher.Constraint("Equal", 0, 1),
    Sketcher.Constraint("Equal", 1, 2),
    Sketcher.Constraint("Equal", 2, 3),
    Sketcher.Constraint("Horizontal", 0, 3, 1, 3),
    Sketcher.Constraint("Horizontal", 2, 3, 3, 3),
    Sketcher.Constraint("Vertical", 1, 3, 2, 3),
    Sketcher.Constraint("Vertical", 0, 3, 3, 3),
    Sketcher.Constraint("Diameter", 0, Q("4.2 mm")),
    Sketcher.Constraint("DistanceX", 0, 3, 1, 3, Q("46 mm")),
    Sketcher.Constraint("DistanceY", 2, 3, 1, 3, Q("68 mm")),
    Sketcher.Constraint("DistanceY", -1, 1, 0, 3, Q("95.15 mm")),
    Sketcher.Constraint("DistanceX", 0, 3, -1, 1, Q("33.82588 mm")),
])
doc.recompute()
hole13 = body.newObject("PartDesign::Hole", "Hole012")
hole13.Profile = sketch20
hole13.ThreadType = "None"
hole13.Diameter = 4.2
hole13.DepthType = "Dimension"
hole13.Depth = 5
hole13.DrillPoint = "Flat"

doc.recompute()
